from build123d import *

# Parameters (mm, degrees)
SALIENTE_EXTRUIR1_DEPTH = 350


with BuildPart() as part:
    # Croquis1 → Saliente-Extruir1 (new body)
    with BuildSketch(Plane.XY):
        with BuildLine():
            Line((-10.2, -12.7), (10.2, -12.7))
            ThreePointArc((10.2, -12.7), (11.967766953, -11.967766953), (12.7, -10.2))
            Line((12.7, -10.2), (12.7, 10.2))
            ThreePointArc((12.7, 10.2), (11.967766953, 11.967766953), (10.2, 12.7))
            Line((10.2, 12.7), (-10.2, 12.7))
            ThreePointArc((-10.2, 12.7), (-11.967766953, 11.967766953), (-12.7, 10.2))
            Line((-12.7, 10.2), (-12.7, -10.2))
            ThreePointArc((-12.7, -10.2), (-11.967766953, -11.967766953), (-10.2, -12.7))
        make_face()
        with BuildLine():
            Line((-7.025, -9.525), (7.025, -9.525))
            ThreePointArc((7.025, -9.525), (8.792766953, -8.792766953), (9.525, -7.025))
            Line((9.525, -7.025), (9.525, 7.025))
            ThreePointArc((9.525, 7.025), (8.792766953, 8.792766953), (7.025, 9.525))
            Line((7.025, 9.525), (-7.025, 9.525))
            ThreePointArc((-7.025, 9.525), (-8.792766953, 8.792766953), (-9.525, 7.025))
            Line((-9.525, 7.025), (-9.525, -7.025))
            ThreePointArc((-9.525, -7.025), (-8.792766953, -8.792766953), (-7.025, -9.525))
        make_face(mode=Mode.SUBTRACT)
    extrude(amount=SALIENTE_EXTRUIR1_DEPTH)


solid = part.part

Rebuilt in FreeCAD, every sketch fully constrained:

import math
import FreeCAD as App
import Part
import Sketcher

V = App.Vector
Q = App.Units.Quantity

doc = App.newDocument("Part")
body = doc.addObject("PartDesign::Body", "Body")

sketch1 = body.newObject("Sketcher::SketchObject", "Sketch")
sketch1.AttachmentSupport = (doc.getObject("XY_Plane"), [""])
sketch1.MapMode = "FlatFace"
sketch1.addGeometry(Part.LineSegment(V(-10.2, -12.7, 0), V(10.2, -12.7, 0)), False)
sketch1.addGeometry(Part.ArcOfCircle(Part.Circle(V(10.2, -10.2, 0), V(0, 0, 1), 2.5), math.radians(-90), math.radians(0)), False)
sketch1.addGeometry(Part.LineSegment(V(12.7, -10.2, 0), V(12.7, 10.2, 0)), False)
sketch1.addGeometry(Part.ArcOfCircle(Part.Circle(V(10.2, 10.2, 0), V(0, 0, 1), 2.5), math.radians(0), math.radians(90)), False)
sketch1.addGeometry(Part.LineSegment(V(10.2, 12.7, 0), V(-10.2, 12.7, 0)), False)
sketch1.addGeometry(Part.ArcOfCircle(Part.Circle(V(-10.2, 10.2, 0), V(0, 0, 1), 2.5), math.radians(90), math.radians(180)), False)
sketch1.addGeometry(Part.LineSegment(V(-12.7, 10.2, 0), V(-12.7, -10.2, 0)), False)
sketch1.addGeometry(Part.ArcOfCircle(Part.Circle(V(-10.2, -10.2, 0), V(0, 0, 1), 2.5), math.radians(180), math.radians(270)), False)
sketch1.addGeometry(Part.LineSegment(V(7, -9.5, 0), V(-7, -9.5, 0)), False)
sketch1.addGeometry(Part.ArcOfCircle(Part.Circle(V(-7, -7, 0), V(0, 0, 1), 2.5), math.radians(180), math.radians(270)), False)
sketch1.addGeometry(Part.LineSegment(V(-9.5, -7, 0), V(-9.5, 7, 0)), False)
sketch1.addGeometry(Part.ArcOfCircle(Part.Circle(V(-7, 7, 0), V(0, 0, 1), 2.5), math.radians(90), math.radians(180)), False)
sketch1.addGeometry(Part.LineSegment(V(-7, 9.5, 0), V(7, 9.5, 0)), False)
sketch1.addGeometry(Part.ArcOfCircle(Part.Circle(V(7, 7, 0), V(0, 0, 1), 2.5), math.radians(0), math.radians(90)), False)
sketch1.addGeometry(Part.LineSegment(V(9.5, 7, 0), V(9.5, -7, 0)), False)
sketch1.addGeometry(Part.ArcOfCircle(Part.Circle(V(7, -7, 0), V(0, 0, 1), 2.5), math.radians(-90), math.radians(0)), False)
sketch1.addConstraint(Sketcher.Constraint("Tangent", 0, 2, 1, 1))
sketch1.addConstraint(Sketcher.Constraint("Tangent", 1, 2, 2, 1))
sketch1.addConstraint(Sketcher.Constraint("Tangent", 2, 2, 3, 1))
sketch1.addConstraint(Sketcher.Constraint("Tangent", 3, 2, 4, 1))
sketch1.addConstraint(Sketcher.Constraint("Tangent", 4, 2, 5, 1))
sketch1.addConstraint(Sketcher.Constraint("Tangent", 5, 2, 6, 1))
sketch1.addConstraint(Sketcher.Constraint("Tangent", 6, 2, 7, 1))
sketch1.addConstraint(Sketcher.Constraint("Tangent", 7, 2, 0, 1))
sketch1.addConstraint(Sketcher.Constraint("Tangent", 8, 2, 9, 2))
sketch1.addConstraint(Sketcher.Constraint("Tangent", 9, 1, 10, 1))
sketch1.addConstraint(Sketcher.Constraint("Tangent", 10, 2, 11, 2))
sketch1.addConstraint(Sketcher.Constraint("Tangent", 11, 1, 12, 1))
sketch1.addConstraint(Sketcher.Constraint("Tangent", 12, 2, 13, 2))
sketch1.addConstraint(Sketcher.Constraint("Tangent", 13, 1, 14, 1))
sketch1.addConstraint(Sketcher.Constraint("Tangent", 14, 2, 15, 2))
sketch1.addConstraint(Sketcher.Constraint("Tangent", 15, 1, 8, 1))
sketch1.addConstraint(Sketcher.Constraint("Horizontal", 0))
sketch1.addConstraint(Sketcher.Constraint("Vertical", 2))
sketch1.addConstraint(Sketcher.Constraint("Horizontal", 4))
sketch1.addConstraint(Sketcher.Constraint("Vertical", 6))
sketch1.addConstraint(Sketcher.Constraint("Horizontal", 8))
sketch1.addConstraint(Sketcher.Constraint("Vertical", 10))
sketch1.addConstraint(Sketcher.Constraint("Horizontal", 12))
sketch1.addConstraint(Sketcher.Constraint("Vertical", 14))
sketch1.addConstraint(Sketcher.Constraint("Equal", 1, 3))
sketch1.addConstraint(Sketcher.Constraint("Equal", 3, 5))
sketch1.addConstraint(Sketcher.Constraint("Equal", 5, 7))
sketch1.addConstraint(Sketcher.Constraint("Equal", 7, 9))
sketch1.addConstraint(Sketcher.Constraint("Equal", 9, 11))
sketch1.addConstraint(Sketcher.Constraint("Equal", 11, 13))
sketch1.addConstraint(Sketcher.Constraint("Equal", 13, 15))
sketch1.addConstraint(Sketcher.Constraint("Symmetric", 1, 3, 5, 3, -1, 1))
sketch1.addConstraint(Sketcher.Constraint("Symmetric", 9, 3, 13, 3, -1, 1))
sketch1.addConstraint(Sketcher.Constraint("Equal", 4, 2))
sketch1.addConstraint(Sketcher.Constraint("Equal", 12, 10))
sketch1.addConstraint(Sketcher.Constraint("Radius", 1, Q("2.5 mm")))
sketch1.addConstraint(Sketcher.Constraint("DistanceX", 0, 1, 0, 2, Q("20.4 mm")))
sketch1.addConstraint(Sketcher.Constraint("DistanceX", 8, 2, 8, 1, Q("14.05 mm")))
pad1 = body.newObject("PartDesign::Pad", "Pad")
pad1.Profile = sketch1
pad1.Length = 350

doc.recompute()
